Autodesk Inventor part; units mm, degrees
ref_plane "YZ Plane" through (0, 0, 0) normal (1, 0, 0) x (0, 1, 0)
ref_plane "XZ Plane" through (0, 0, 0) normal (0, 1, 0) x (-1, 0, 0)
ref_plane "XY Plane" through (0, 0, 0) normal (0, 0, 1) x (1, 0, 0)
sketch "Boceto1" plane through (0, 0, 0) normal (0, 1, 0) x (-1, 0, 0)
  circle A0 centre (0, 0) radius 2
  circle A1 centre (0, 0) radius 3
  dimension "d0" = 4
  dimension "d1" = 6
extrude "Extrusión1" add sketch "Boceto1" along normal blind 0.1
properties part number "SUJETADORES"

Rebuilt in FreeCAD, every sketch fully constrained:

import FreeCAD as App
import Part
import Sketcher

V = App.Vector
Q = App.Units.Quantity

doc = App.newDocument("Part")
body = doc.addObject("PartDesign::Body", "Body")

sketch1 = body.newObject("Sketcher::SketchObject", "Sketch")
sketch1.AttachmentSupport = (doc.getObject("XZ_Plane"), [""])
sketch1.MapMode = "FlatFace"
sketch1.addGeometry(Part.Circle(V(0, 0, 0), V(0, 0, 1), 3), False)
sketch1.addGeometry(Part.Circle(V(0, 0, 0), V(0, 0, 1), 2), False)
sketch1.addConstraint(Sketcher.Constraint("Coincident", 0, 3, -1, 1))
sketch1.addConstraint(Sketcher.Constraint("Coincident", 1, 3, -1, 1))
sketch1.addConstraint(Sketcher.Constraint("Diameter", 0, Q("6 mm")))
sketch1.addConstraint(Sketcher.Constraint("Diameter", 1, Q("4 mm")))
pad1 = body.newObject("PartDesign::Pad", "Pad")
pad1.Profile = sketch1
pad1.Length = 0.1
pad1.Reversed = True

doc.recompute()
